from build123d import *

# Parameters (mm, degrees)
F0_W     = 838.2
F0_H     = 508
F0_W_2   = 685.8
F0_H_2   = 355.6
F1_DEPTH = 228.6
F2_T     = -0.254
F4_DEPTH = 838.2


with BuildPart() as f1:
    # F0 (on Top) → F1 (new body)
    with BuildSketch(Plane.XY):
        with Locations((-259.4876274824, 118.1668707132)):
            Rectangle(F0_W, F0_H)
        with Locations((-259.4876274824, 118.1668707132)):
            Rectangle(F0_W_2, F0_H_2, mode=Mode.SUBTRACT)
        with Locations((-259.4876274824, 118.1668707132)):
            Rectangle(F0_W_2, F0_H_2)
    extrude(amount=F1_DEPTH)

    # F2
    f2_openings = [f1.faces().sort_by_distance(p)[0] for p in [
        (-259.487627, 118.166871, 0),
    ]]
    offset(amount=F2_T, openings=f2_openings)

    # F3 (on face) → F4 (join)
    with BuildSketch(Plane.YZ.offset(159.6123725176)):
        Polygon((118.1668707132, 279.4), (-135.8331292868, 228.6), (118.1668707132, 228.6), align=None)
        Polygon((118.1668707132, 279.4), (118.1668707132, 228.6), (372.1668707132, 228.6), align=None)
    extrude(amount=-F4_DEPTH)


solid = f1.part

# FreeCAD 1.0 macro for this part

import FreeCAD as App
import Part
import Sketcher
Q = App.Units.Quantity


def faces_at(feature, points):
    """Names of the faces that lie closest to the given points."""
    faces = feature.Shape.Faces
    near = lambda p: min(range(len(faces)), key=lambda i: faces[i].distToShape(Part.Vertex(*p))[0])
    return sorted({f"Face{near(p) + 1}" for p in points})


def add_polygon(sketch, points):
    """Adds a closed chain of lines whose ends are joined by coincident constraints."""
    first, n = sketch.GeometryCount, len(points)
    for a, b in zip(points, points[1:] + points[:1]):
        sketch.addGeometry(Part.LineSegment(App.Vector(*a, 0), App.Vector(*b, 0)), False)
    for i in range(n):
        sketch.addConstraint(Sketcher.Constraint("Coincident", first + i, 2, first + (i + 1) % n, 1))

doc = App.newDocument("Part")
body = doc.addObject("PartDesign::Body", "Body")

# Sketch on XY plane
sketch1 = body.newObject("Sketcher::SketchObject", "Sketch")
sketch1.AttachmentSupport = (doc.getObject("XY_Plane"), [""])
sketch1.MapMode = "FlatFace"
add_polygon(sketch1, [(-679, 372), (-679, -136), (160, -136), (160, 372)])  # lines 0-3
sketch1.addConstraint([
    Sketcher.Constraint("Vertical", 0),
    Sketcher.Constraint("Horizontal", 1),
    Sketcher.Constraint("Vertical", 2),
    Sketcher.Constraint("Horizontal", 3),
    Sketcher.Constraint("DistanceX", 1, 1, 1, 2, Q("33 in")),
    Sketcher.Constraint("DistanceY", 0, 2, 0, 1, Q("20 in")),
    Sketcher.Constraint("DistanceY", 0, 2, -1, 1, 135.833129),
    Sketcher.Constraint("DistanceX", 0, 2, -1, 1, 678.587627),
])
pad1 = body.newObject("PartDesign::Pad", "Pad")
pad1.Profile = sketch1
pad1.Length = Q("9 in")
doc.recompute()

thickness = body.newObject("PartDesign::Thickness", "Thickness")
thickness.Base = (pad1, faces_at(pad1, [(-259.488, 118.167, 0)]))
thickness.Value = Q("0.01 in")
thickness.Reversed = True
thickness.Join = "Arc"

# Sketch on YZ plane
sketch2 = body.newObject("Sketcher::SketchObject", "Sketch001")
sketch2.AttachmentSupport = (doc.getObject("YZ_Plane"), [""])
sketch2.MapMode = "FlatFace"
sketch2.AttachmentOffset = App.Placement(App.Vector(0, 0, 159.612373), App.Rotation())
add_polygon(sketch2, [(118, 279), (-136, 229), (372, 229)])  # lines 0-2
sketch2.addConstraint([
    Sketcher.Constraint("Horizontal", 1),
    Sketcher.Constraint("Equal", 0, 2),
    Sketcher.Constraint("DistanceX", 1, 1, 1, 2, Q("20 in")),
    Sketcher.Constraint("DistanceY", -1, 1, 0, 2, Q("9 in")),
    Sketcher.Constraint("DistanceY", -1, 1, 2, 2, Q("11 in")),
    Sketcher.Constraint("DistanceX", 0, 2, -1, 1, 135.833129),
])
pad2 = body.newObject("PartDesign::Pad", "Pad001")
pad2.Profile = sketch2
pad2.Length = Q("33 in")
pad2.Reversed = True

doc.recompute()
